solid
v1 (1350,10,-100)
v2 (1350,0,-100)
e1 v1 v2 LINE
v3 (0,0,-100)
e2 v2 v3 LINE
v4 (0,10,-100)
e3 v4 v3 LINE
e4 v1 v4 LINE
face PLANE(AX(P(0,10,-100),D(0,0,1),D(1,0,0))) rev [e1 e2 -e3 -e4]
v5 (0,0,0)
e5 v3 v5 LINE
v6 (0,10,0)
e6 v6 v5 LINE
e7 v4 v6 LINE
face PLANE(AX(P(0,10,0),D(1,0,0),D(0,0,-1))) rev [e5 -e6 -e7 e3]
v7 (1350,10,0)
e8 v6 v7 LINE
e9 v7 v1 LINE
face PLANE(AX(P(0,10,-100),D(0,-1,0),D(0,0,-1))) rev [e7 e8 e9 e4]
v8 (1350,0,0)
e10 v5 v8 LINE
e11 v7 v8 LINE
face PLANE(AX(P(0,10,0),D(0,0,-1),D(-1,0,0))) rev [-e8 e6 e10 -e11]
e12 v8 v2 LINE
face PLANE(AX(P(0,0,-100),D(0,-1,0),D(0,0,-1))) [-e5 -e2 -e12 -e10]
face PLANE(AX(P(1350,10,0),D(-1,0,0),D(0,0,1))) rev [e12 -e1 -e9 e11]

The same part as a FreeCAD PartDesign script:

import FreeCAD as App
import Part
import Sketcher
from FreeCAD import Vector
Q = App.Units.Quantity


def add_polygon(sketch, points):
    """Adds a closed chain of lines whose ends are joined by coincident constraints."""
    first, n = sketch.GeometryCount, len(points)
    for a, b in zip(points, points[1:] + points[:1]):
        sketch.addGeometry(Part.LineSegment(App.Vector(*a, 0), App.Vector(*b, 0)), False)
    for i in range(n):
        sketch.addConstraint(Sketcher.Constraint("Coincident", first + i, 2, first + (i + 1) % n, 1))

doc = App.newDocument("Part")
body = doc.addObject("PartDesign::Body", "Body")

sketch1 = doc.addObject("Sketcher::SketchObject", "Sketch")
body.addObject(sketch1)
sketch1.AttachmentSupport = (doc.XZ_Plane, [""])
sketch1.MapMode = "FlatFace"
add_polygon(sketch1, [(0, -100), (0, 0), (1350, 0), (1350, -100)])
sketch1.addConstraint([
    Sketcher.Constraint("Vertical", 0),
    Sketcher.Constraint("Horizontal", 1),
    Sketcher.Constraint("Vertical", 2),
    Sketcher.Constraint("Horizontal", 3),
    Sketcher.Constraint("Coincident", 0, 2, -1, 1),
    Sketcher.Constraint("DistanceX", 1, 1, 1, 2, Q("1350 mm")),
    Sketcher.Constraint("DistanceY", 0, 1, 0, 2, Q("100 mm")),
])
pad1 = doc.addObject("PartDesign::Pad", "Pad")
body.addObject(pad1)
pad1.Profile = sketch1
pad1.Length = 10
pad1.Reversed = True

doc.recompute()
